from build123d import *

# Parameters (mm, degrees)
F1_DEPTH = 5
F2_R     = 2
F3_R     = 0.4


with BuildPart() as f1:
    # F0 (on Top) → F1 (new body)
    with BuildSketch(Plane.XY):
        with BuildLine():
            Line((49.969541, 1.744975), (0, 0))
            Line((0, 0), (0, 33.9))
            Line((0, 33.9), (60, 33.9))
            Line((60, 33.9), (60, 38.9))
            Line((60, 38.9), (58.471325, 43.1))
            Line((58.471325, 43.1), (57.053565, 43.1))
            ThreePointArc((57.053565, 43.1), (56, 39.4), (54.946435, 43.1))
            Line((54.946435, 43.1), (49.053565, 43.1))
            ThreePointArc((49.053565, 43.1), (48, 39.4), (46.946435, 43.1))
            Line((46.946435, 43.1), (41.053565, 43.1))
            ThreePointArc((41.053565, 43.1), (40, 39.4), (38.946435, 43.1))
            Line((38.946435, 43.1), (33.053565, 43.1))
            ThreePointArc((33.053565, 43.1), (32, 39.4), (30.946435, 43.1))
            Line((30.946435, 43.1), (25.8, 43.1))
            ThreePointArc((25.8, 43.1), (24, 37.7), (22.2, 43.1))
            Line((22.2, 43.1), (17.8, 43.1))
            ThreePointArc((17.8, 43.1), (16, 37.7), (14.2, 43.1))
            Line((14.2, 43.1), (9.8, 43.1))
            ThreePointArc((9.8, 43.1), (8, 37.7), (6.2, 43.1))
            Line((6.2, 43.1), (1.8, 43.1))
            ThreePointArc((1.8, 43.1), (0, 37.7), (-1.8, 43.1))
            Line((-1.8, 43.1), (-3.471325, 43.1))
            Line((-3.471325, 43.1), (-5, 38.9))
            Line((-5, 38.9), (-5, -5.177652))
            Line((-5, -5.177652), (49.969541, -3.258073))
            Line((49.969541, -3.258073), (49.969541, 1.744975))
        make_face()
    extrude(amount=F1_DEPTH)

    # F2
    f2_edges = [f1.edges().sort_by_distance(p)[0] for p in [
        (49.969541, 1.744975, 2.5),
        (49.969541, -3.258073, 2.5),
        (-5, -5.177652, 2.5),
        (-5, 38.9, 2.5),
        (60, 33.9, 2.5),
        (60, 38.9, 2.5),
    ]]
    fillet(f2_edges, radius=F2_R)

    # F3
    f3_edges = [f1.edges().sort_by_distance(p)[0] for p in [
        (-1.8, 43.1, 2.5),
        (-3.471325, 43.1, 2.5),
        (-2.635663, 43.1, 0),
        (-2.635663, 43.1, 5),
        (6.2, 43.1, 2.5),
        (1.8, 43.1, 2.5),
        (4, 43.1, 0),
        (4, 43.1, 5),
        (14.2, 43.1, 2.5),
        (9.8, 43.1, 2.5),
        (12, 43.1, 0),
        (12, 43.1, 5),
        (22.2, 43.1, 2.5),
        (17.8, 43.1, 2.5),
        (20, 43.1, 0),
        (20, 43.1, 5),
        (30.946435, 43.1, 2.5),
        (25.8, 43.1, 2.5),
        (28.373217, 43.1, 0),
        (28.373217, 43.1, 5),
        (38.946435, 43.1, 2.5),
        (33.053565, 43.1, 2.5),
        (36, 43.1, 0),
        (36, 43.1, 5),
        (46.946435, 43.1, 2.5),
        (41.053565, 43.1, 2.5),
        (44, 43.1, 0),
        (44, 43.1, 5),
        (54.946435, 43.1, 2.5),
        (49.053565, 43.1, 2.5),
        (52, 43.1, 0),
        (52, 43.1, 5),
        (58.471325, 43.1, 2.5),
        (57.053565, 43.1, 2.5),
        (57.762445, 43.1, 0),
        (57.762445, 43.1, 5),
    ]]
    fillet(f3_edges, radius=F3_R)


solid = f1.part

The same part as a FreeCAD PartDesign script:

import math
import FreeCAD as App
import Part
import Sketcher

V = App.Vector
Q = App.Units.Quantity


def edges_at(feature, points):
    """Names of the edges that pass closest to the given points."""
    edges = feature.Shape.Edges
    near = lambda p: min(range(len(edges)), key=lambda i: edges[i].distToShape(Part.Vertex(*p))[0])
    return sorted({f"Edge{near(p) + 1}" for p in points})

doc = App.newDocument("Part")
params = doc.addObject("Spreadsheet::Sheet", "Params")
for row, (alias, value) in enumerate([
    ("sketch1_radius", "2 mm"),
    ("sketch1_radius2", "3 mm"),
    ("sketch1_width", "60 mm"),
    ("sketch1_height", "5 mm"),
    ("sketch1_length", "50 mm"),
    ("pad1_length", "5 mm"),
    ("fillet_radius", "2 mm"),
    ("fillet2_radius", "0.4 mm"),
], start=1):
    params.set(f"A{row}", alias)
    params.set(f"B{row}", "=" + value)
    params.setAlias(f"B{row}", alias)

body = doc.addObject("PartDesign::Body", "Body")

sketch1 = body.newObject("Sketcher::SketchObject", "Sketch")
sketch1.AttachmentSupport = (doc.getObject("XY_Plane"), [""])
sketch1.MapMode = "FlatFace"
sketch1.addGeometry(Part.LineSegment(V(50, 1.7, 0), V(0, 0, 0)), False)
sketch1.addGeometry(Part.LineSegment(V(0, 0, 0), V(0, 33.9, 0)), False)
sketch1.addGeometry(Part.LineSegment(V(0, 33.9, 0), V(60, 33.9, 0)), False)
sketch1.addGeometry(Part.LineSegment(V(60, 33.9, 0), V(60, 38.9, 0)), False)
sketch1.addGeometry(Part.LineSegment(V(60, 38.9, 0), V(58.5, 43.1, 0)), False)
sketch1.addGeometry(Part.LineSegment(V(58.5, 43.1, 0), V(57.1, 43.1, 0)), False)
sketch1.addGeometry(Part.ArcOfCircle(Part.Circle(V(56, 41.4, 0), V(0, 0, 1), 2), math.radians(122), math.radians(418)), False)
sketch1.addGeometry(Part.LineSegment(V(54.9, 43.1, 0), V(49.1, 43.1, 0)), False)
sketch1.addGeometry(Part.ArcOfCircle(Part.Circle(V(48, 41.4, 0), V(0, 0, 1), 2), math.radians(122), math.radians(418)), False)
sketch1.addGeometry(Part.LineSegment(V(46.9, 43.1, 0), V(41.1, 43.1, 0)), False)
sketch1.addGeometry(Part.ArcOfCircle(Part.Circle(V(40, 41.4, 0), V(0, 0, 1), 2), math.radians(122), math.radians(418)), False)
sketch1.addGeometry(Part.LineSegment(V(38.9, 43.1, 0), V(33.1, 43.1, 0)), False)
sketch1.addGeometry(Part.ArcOfCircle(Part.Circle(V(32, 41.4, 0), V(0, 0, 1), 2), math.radians(122), math.radians(418)), False)
sketch1.addGeometry(Part.LineSegment(V(30.9, 43.1, 0), V(25.8, 43.1, 0)), False)
sketch1.addGeometry(Part.ArcOfCircle(Part.Circle(V(24, 40.7, 0), V(0, 0, 1), 3), math.radians(127), math.radians(413)), False)
sketch1.addGeometry(Part.LineSegment(V(22.2, 43.1, 0), V(17.8, 43.1, 0)), False)
sketch1.addGeometry(Part.ArcOfCircle(Part.Circle(V(16, 40.7, 0), V(0, 0, 1), 3), math.radians(127), math.radians(413)), False)
sketch1.addGeometry(Part.LineSegment(V(14.2, 43.1, 0), V(9.8, 43.1, 0)), False)
sketch1.addGeometry(Part.ArcOfCircle(Part.Circle(V(8, 40.7, 0), V(0, 0, 1), 3), math.radians(127), math.radians(413)), False)
sketch1.addGeometry(Part.LineSegment(V(6.2, 43.1, 0), V(1.8, 43.1, 0)), False)
sketch1.addGeometry(Part.ArcOfCircle(Part.Circle(V(0, 40.7, 0), V(0, 0, 1), 3), math.radians(127), math.radians(413)), False)
sketch1.addGeometry(Part.LineSegment(V(-1.8, 43.1, 0), V(-3.5, 43.1, 0)), False)
sketch1.addGeometry(Part.LineSegment(V(-3.5, 43.1, 0), V(-5, 38.9, 0)), False)
sketch1.addGeometry(Part.LineSegment(V(-5, 38.9, 0), V(-5, -5.2, 0)), False)
sketch1.addGeometry(Part.LineSegment(V(-5, -5.2, 0), V(50, -3.3, 0)), False)
sketch1.addGeometry(Part.LineSegment(V(50, -3.3, 0), V(50, 1.7, 0)), False)
sketch1.addConstraint(Sketcher.Constraint("Coincident", 0, 2, 1, 1))
sketch1.addConstraint(Sketcher.Constraint("Coincident", 1, 2, 2, 1))
sketch1.addConstraint(Sketcher.Constraint("Coincident", 2, 2, 3, 1))
sketch1.addConstraint(Sketcher.Constraint("Coincident", 3, 2, 4, 1))
sketch1.addConstraint(Sketcher.Constraint("Coincident", 4, 2, 5, 1))
sketch1.addConstraint(Sketcher.Constraint("Coincident", 5, 2, 6, 2))
sketch1.addConstraint(Sketcher.Constraint("Coincident", 6, 1, 7, 1))
sketch1.addConstraint(Sketcher.Constraint("Coincident", 7, 2, 8, 2))
sketch1.addConstraint(Sketcher.Constraint("Coincident", 8, 1, 9, 1))
sketch1.addConstraint(Sketcher.Constraint("Coincident", 9, 2, 10, 2))
sketch1.addConstraint(Sketcher.Constraint("Coincident", 10, 1, 11, 1))
sketch1.addConstraint(Sketcher.Constraint("Coincident", 11, 2, 12, 2))
sketch1.addConstraint(Sketcher.Constraint("Coincident", 12, 1, 13, 1))
sketch1.addConstraint(Sketcher.Constraint("Coincident", 13, 2, 14, 2))
sketch1.addConstraint(Sketcher.Constraint("Coincident", 14, 1, 15, 1))
sketch1.addConstraint(Sketcher.Constraint("Coincident", 15, 2, 16, 2))
sketch1.addConstraint(Sketcher.Constraint("Coincident", 16, 1, 17, 1))
sketch1.addConstraint(Sketcher.Constraint("Coincident", 17, 2, 18, 2))
sketch1.addConstraint(Sketcher.Constraint("Coincident", 18, 1, 19, 1))
sketch1.addConstraint(Sketcher.Constraint("Coincident", 19, 2, 20, 2))
sketch1.addConstraint(Sketcher.Constraint("Coincident", 20, 1, 21, 1))
sketch1.addConstraint(Sketcher.Constraint("Coincident", 21, 2, 22, 1))
sketch1.addConstraint(Sketcher.Constraint("Coincident", 22, 2, 23, 1))
sketch1.addConstraint(Sketcher.Constraint("Coincident", 23, 2, 24, 1))
sketch1.addConstraint(Sketcher.Constraint("Coincident", 24, 2, 25, 1))
sketch1.addConstraint(Sketcher.Constraint("Coincident", 25, 2, 0, 1))
sketch1.addConstraint(Sketcher.Constraint("Vertical", 1))
sketch1.addConstraint(Sketcher.Constraint("Horizontal", 2))
sketch1.addConstraint(Sketcher.Constraint("Vertical", 3))
sketch1.addConstraint(Sketcher.Constraint("Horizontal", 5))
sketch1.addConstraint(Sketcher.Constraint("Horizontal", 7))
sketch1.addConstraint(Sketcher.Constraint("Horizontal", 9))
sketch1.addConstraint(Sketcher.Constraint("Horizontal", 11))
sketch1.addConstraint(Sketcher.Constraint("Horizontal", 13))
sketch1.addConstraint(Sketcher.Constraint("Horizontal", 15))
sketch1.addConstraint(Sketcher.Constraint("Horizontal", 17))
sketch1.addConstraint(Sketcher.Constraint("Horizontal", 19))
sketch1.addConstraint(Sketcher.Constraint("Horizontal", 21))
sketch1.addConstraint(Sketcher.Constraint("Vertical", 23))
sketch1.addConstraint(Sketcher.Constraint("Vertical", 25))
sketch1.addConstraint(Sketcher.Constraint("Coincident", 0, 2, -1, 1))
sketch1.addConstraint(Sketcher.Constraint("Equal", 6, 8))
sketch1.addConstraint(Sketcher.Constraint("Equal", 8, 10))
sketch1.addConstraint(Sketcher.Constraint("Equal", 10, 12))
sketch1.addConstraint(Sketcher.Constraint("Equal", 14, 16))
sketch1.addConstraint(Sketcher.Constraint("Equal", 16, 18))
sketch1.addConstraint(Sketcher.Constraint("Equal", 18, 20))
sketch1.addConstraint(Sketcher.Constraint("Symmetric", 19, 2, 20, 1, -2))
sketch1.addConstraint(Sketcher.Constraint("Parallel", 0, 24))
sketch1.addConstraint(Sketcher.Constraint("Horizontal", 6, 3, 8, 3))
sketch1.addConstraint(Sketcher.Constraint("Horizontal", 8, 3, 10, 3))
sketch1.addConstraint(Sketcher.Constraint("Horizontal", 10, 3, 12, 3))
sketch1.addConstraint(Sketcher.Constraint("Horizontal", 14, 3, 16, 3))
sketch1.addConstraint(Sketcher.Constraint("Horizontal", 16, 3, 18, 3))
sketch1.addConstraint(Sketcher.Constraint("Horizontal", 18, 3, 20, 3))
sketch1.addConstraint(Sketcher.Constraint("Horizontal", 5, 2, 6, 1))
sketch1.addConstraint(Sketcher.Constraint("Horizontal", 7, 2, 8, 1))
sketch1.addConstraint(Sketcher.Constraint("Horizontal", 9, 2, 10, 1))
sketch1.addConstraint(Sketcher.Constraint("Horizontal", 11, 2, 12, 1))
sketch1.addConstraint(Sketcher.Constraint("Horizontal", 13, 2, 14, 1))
sketch1.addConstraint(Sketcher.Constraint("Horizontal", 15, 2, 16, 1))
sketch1.addConstraint(Sketcher.Constraint("Horizontal", 17, 2, 18, 1))
sketch1.addConstraint(Sketcher.Constraint("Horizontal", 3, 2, 22, 2))
sketch1.addConstraint(Sketcher.Constraint("Equal", 7, 9))
sketch1.addConstraint(Sketcher.Constraint("Equal", 9, 11))
sketch1.addConstraint(Sketcher.Constraint("Equal", 15, 17))
sketch1.addConstraint(Sketcher.Constraint("Equal", 17, 19))
sketch1.addConstraint(Sketcher.Constraint("Equal", 4, 22))
sketch1.addConstraint(Sketcher.Constraint("Radius", 6, 2.0))
sketch1.addConstraint(Sketcher.Constraint("Radius", 14, 3.0))
sketch1.addConstraint(Sketcher.Constraint("DistanceX", 2, 1, 2, 2, 60.0))
sketch1.addConstraint(Sketcher.Constraint("DistanceY", 3, 1, 3, 2, 5.0))
sketch1.addConstraint(Sketcher.Constraint("Angle", 0, Q("-178 deg")))
sketch1.addConstraint(Sketcher.Constraint("Angle", 4, Q("110 deg")))
sketch1.addConstraint(Sketcher.Constraint("Distance", 0, 50.0))
sketch1.addConstraint(Sketcher.Constraint("DistanceX", 15, 2, 15, 1, 4.4))
sketch1.addConstraint(Sketcher.Constraint("DistanceY", 1, 1, 1, 2, 33.9))
sketch1.addConstraint(Sketcher.Constraint("DistanceX", -1, 1, 6, 3, 56.0))
sketch1.addConstraint(Sketcher.Constraint("DistanceX", -1, 1, 8, 3, 48.0))
sketch1.addConstraint(Sketcher.Constraint("DistanceX", -1, 1, 14, 3, 24.0))
sketch1.addConstraint(Sketcher.Constraint("DistanceX", 22, 2, -1, 1, 5.0))
sketch1.addConstraint(Sketcher.Constraint("DistanceY", -1, 1, 6, 3, 41.4))
sketch1.addConstraint(Sketcher.Constraint("DistanceY", -1, 1, 14, 3, 40.7))
sketch1.addConstraint(Sketcher.Constraint("DistanceY", 23, 2, 23, 1, 44.077652))
sketch1.setExpression("Constraints[68]", "Params.sketch1_radius")
sketch1.setExpression("Constraints[69]", "Params.sketch1_radius2")
sketch1.setExpression("Constraints[70]", "Params.sketch1_width")
sketch1.setExpression("Constraints[71]", "Params.sketch1_height")
sketch1.setExpression("Constraints[74]", "Params.sketch1_length")
pad1 = body.newObject("PartDesign::Pad", "Pad")
pad1.Profile = sketch1
pad1.setExpression("Length", "Params.pad1_length")
doc.recompute()

fillet = body.newObject("PartDesign::Fillet", "Fillet")
fillet.Base = (pad1, edges_at(pad1, [
    (49.97, 1.745, 2.5),
    (49.97, -3.258, 2.5),
    (-5, -5.178, 2.5),
    (-5, 38.9, 2.5),
    (60, 33.9, 2.5),
    (60, 38.9, 2.5),
]))
fillet.setExpression("Radius", "Params.fillet_radius")
doc.recompute()

fillet2 = body.newObject("PartDesign::Fillet", "Fillet001")
fillet2.Base = (fillet, edges_at(fillet, [
    (-1.8, 43.1, 2.5),
    (-3.471, 43.1, 2.5),
    (-2.636, 43.1, 0),
    (-2.636, 43.1, 5),
    (6.2, 43.1, 2.5),
    (1.8, 43.1, 2.5),
    (4, 43.1, 0),
    (4, 43.1, 5),
    (14.2, 43.1, 2.5),
    (9.8, 43.1, 2.5),
    (12, 43.1, 0),
    (12, 43.1, 5),
    (22.2, 43.1, 2.5),
    (17.8, 43.1, 2.5),
    (20, 43.1, 0),
    (20, 43.1, 5),
    (30.946, 43.1, 2.5),
    (25.8, 43.1, 2.5),
    (28.373, 43.1, 0),
    (28.373, 43.1, 5),
    (38.946, 43.1, 2.5),
    (33.054, 43.1, 2.5),
    (36, 43.1, 0),
    (36, 43.1, 5),
    (46.946, 43.1, 2.5),
    (41.054, 43.1, 2.5),
    (44, 43.1, 0),
    (44, 43.1, 5),
    (54.946, 43.1, 2.5),
    (49.054, 43.1, 2.5),
    (52, 43.1, 0),
    (52, 43.1, 5),
    (58.471, 43.1, 2.5),
    (57.054, 43.1, 2.5),
    (57.762, 43.1, 0),
    (57.762, 43.1, 5),
]))
fillet2.setExpression("Radius", "Params.fillet2_radius")

doc.recompute()
